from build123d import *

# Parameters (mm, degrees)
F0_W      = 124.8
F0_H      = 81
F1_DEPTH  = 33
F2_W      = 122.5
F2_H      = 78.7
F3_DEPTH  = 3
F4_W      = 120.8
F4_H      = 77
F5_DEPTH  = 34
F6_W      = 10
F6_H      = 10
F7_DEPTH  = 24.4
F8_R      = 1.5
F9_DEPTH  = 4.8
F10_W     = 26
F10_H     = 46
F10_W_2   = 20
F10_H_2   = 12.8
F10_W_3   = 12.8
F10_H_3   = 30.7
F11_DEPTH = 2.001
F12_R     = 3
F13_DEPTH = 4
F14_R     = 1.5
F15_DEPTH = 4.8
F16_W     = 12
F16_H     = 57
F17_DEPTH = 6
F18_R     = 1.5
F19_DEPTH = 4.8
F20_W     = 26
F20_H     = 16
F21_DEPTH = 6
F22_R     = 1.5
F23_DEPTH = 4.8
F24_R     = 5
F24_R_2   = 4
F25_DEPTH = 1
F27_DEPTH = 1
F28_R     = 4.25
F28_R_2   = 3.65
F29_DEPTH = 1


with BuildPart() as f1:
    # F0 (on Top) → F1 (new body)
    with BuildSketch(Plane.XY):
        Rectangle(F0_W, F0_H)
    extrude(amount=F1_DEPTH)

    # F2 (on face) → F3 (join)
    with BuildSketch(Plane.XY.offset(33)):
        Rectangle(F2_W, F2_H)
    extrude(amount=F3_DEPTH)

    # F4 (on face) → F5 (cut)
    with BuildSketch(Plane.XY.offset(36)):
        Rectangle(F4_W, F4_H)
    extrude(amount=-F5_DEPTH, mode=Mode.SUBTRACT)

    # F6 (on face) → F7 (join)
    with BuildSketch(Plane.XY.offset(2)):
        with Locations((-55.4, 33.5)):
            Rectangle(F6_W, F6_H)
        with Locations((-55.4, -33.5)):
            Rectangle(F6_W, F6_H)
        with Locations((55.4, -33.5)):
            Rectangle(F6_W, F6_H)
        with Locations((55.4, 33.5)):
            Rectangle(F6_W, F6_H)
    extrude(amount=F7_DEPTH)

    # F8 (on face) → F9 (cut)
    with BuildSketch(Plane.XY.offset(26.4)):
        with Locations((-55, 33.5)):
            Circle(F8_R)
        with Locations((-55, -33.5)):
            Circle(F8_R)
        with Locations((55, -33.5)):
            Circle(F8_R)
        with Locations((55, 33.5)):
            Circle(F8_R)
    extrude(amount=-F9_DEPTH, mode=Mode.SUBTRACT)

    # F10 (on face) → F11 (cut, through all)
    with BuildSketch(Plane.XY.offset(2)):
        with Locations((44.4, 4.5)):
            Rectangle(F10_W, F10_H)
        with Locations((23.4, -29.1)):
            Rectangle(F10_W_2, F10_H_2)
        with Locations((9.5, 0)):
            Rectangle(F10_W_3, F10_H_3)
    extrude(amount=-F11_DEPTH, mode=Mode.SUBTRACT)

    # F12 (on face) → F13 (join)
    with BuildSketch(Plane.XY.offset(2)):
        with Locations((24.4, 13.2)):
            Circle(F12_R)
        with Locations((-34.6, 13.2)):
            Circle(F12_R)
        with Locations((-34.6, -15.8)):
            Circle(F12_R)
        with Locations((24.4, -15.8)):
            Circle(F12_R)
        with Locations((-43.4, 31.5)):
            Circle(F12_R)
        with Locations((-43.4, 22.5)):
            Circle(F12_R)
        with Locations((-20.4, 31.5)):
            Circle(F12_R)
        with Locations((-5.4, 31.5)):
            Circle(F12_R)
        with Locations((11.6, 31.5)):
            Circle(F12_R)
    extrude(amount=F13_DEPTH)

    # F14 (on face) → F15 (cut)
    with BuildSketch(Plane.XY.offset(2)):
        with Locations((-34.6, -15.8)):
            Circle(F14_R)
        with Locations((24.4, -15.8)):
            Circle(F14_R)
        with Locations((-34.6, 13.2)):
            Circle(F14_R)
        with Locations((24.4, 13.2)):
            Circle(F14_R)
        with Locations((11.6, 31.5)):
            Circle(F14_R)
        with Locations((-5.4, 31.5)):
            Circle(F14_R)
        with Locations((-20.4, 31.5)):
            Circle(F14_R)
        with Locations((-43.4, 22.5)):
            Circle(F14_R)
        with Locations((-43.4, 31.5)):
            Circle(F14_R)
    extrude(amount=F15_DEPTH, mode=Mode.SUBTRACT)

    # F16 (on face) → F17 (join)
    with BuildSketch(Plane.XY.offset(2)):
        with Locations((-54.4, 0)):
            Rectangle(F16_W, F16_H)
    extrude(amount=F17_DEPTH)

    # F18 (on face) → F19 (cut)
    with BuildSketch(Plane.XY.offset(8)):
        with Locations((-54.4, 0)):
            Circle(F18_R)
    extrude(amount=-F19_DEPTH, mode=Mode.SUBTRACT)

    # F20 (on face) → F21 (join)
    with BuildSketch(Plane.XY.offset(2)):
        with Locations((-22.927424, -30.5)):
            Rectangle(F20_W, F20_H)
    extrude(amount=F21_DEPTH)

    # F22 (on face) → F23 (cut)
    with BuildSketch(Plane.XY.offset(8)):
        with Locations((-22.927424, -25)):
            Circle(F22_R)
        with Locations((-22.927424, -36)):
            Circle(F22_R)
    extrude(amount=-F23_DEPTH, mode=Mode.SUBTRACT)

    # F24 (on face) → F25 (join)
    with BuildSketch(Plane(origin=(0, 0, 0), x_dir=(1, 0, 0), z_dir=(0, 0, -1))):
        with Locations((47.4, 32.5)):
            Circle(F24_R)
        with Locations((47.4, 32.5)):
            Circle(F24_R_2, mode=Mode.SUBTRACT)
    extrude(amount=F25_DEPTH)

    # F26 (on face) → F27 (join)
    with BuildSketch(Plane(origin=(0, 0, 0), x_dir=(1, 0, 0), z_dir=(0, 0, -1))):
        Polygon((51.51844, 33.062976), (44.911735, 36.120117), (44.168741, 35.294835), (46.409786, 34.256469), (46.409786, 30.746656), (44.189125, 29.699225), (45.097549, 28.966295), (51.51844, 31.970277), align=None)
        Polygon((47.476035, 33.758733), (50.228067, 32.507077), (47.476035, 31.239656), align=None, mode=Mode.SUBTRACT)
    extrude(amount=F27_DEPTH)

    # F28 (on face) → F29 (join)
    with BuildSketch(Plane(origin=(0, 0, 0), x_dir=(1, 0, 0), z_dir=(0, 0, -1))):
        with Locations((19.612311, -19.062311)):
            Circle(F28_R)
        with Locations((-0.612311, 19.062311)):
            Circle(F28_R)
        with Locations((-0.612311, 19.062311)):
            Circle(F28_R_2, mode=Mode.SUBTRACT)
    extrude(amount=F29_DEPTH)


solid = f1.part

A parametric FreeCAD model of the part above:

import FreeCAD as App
import Part
import Sketcher


def add_polygon(sketch, points):
    """Adds a closed chain of lines whose ends are joined by coincident constraints."""
    first, n = sketch.GeometryCount, len(points)
    for a, b in zip(points, points[1:] + points[:1]):
        sketch.addGeometry(Part.LineSegment(App.Vector(*a, 0), App.Vector(*b, 0)), False)
    for i in range(n):
        sketch.addConstraint(Sketcher.Constraint("Coincident", first + i, 2, first + (i + 1) % n, 1))

doc = App.newDocument("Part")
body = doc.addObject("PartDesign::Body", "Body")

sketch1 = body.newObject("Sketcher::SketchObject", "Sketch")
sketch1.AttachmentSupport = (doc.getObject("XY_Plane"), [""])
sketch1.MapMode = "FlatFace"
add_polygon(sketch1, [(-62, 40), (-62, -40), (62, -40), (62, 40)])
sketch1.addConstraint(Sketcher.Constraint("Vertical", 0))
sketch1.addConstraint(Sketcher.Constraint("Horizontal", 1))
sketch1.addConstraint(Sketcher.Constraint("Vertical", 2))
sketch1.addConstraint(Sketcher.Constraint("Horizontal", 3))
sketch1.addConstraint(Sketcher.Constraint("Symmetric", 0, 2, 2, 2, -1, 1))
sketch1.addConstraint(Sketcher.Constraint("DistanceY", 0, 2, 0, 1, 81.0))
sketch1.addConstraint(Sketcher.Constraint("DistanceX", 1, 1, 1, 2, 124.8))
pad1 = body.newObject("PartDesign::Pad", "Pad")
pad1.Profile = sketch1
pad1.Length = 33

sketch2 = body.newObject("Sketcher::SketchObject", "Sketch001")
sketch2.AttachmentSupport = (doc.getObject("XY_Plane"), [""])
sketch2.MapMode = "FlatFace"
sketch2.AttachmentOffset = App.Placement(App.Vector(0, 0, 33), App.Rotation())
add_polygon(sketch2, [(-61, 39), (-61, -39), (61, -39), (61, 39)])
sketch2.addConstraint(Sketcher.Constraint("Vertical", 0))
sketch2.addConstraint(Sketcher.Constraint("Horizontal", 1))
sketch2.addConstraint(Sketcher.Constraint("Vertical", 2))
sketch2.addConstraint(Sketcher.Constraint("Horizontal", 3))
sketch2.addConstraint(Sketcher.Constraint("Symmetric", 0, 2, 2, 2, -1, 1))
sketch2.addConstraint(Sketcher.Constraint("DistanceX", 1, 1, 1, 2, 122.5))
sketch2.addConstraint(Sketcher.Constraint("DistanceY", 0, 2, 0, 1, 78.7))
pad2 = body.newObject("PartDesign::Pad", "Pad001")
pad2.Profile = sketch2
pad2.Length = 3

sketch3 = body.newObject("Sketcher::SketchObject", "Sketch002")
sketch3.AttachmentSupport = (doc.getObject("XY_Plane"), [""])
sketch3.MapMode = "FlatFace"
sketch3.AttachmentOffset = App.Placement(App.Vector(0, 0, 36), App.Rotation())
add_polygon(sketch3, [(-60, 38), (-60, -38), (60, -38), (60, 38)])
sketch3.addConstraint(Sketcher.Constraint("Vertical", 0))
sketch3.addConstraint(Sketcher.Constraint("Horizontal", 1))
sketch3.addConstraint(Sketcher.Constraint("Vertical", 2))
sketch3.addConstraint(Sketcher.Constraint("Horizontal", 3))
sketch3.addConstraint(Sketcher.Constraint("Symmetric", 0, 2, 2, 2, -1, 1))
sketch3.addConstraint(Sketcher.Constraint("DistanceY", 0, 2, 0, 1, 77.0))
sketch3.addConstraint(Sketcher.Constraint("DistanceX", 1, 1, 1, 2, 120.8))
pocket1 = body.newObject("PartDesign::Pocket", "Pocket")
pocket1.Profile = sketch3
pocket1.Length = 34

sketch4 = body.newObject("Sketcher::SketchObject", "Sketch003")
sketch4.AttachmentSupport = (doc.getObject("XY_Plane"), [""])
sketch4.MapMode = "FlatFace"
sketch4.AttachmentOffset = App.Placement(App.Vector(0, 0, 2), App.Rotation())
add_polygon(sketch4, [(-60, 38), (-60, 28), (-50, 28), (-50, 38)])
add_polygon(sketch4, [(-60, -28), (-60, -38), (-50, -38), (-50, -28)])
add_polygon(sketch4, [(50, -28), (50, -38), (60, -38), (60, -28)])
add_polygon(sketch4, [(50, 38), (50, 28), (60, 28), (60, 38)])
sketch4.addConstraint(Sketcher.Constraint("Vertical", 0))
sketch4.addConstraint(Sketcher.Constraint("Horizontal", 1))
sketch4.addConstraint(Sketcher.Constraint("Vertical", 2))
sketch4.addConstraint(Sketcher.Constraint("Horizontal", 3))
sketch4.addConstraint(Sketcher.Constraint("Vertical", 4))
sketch4.addConstraint(Sketcher.Constraint("Horizontal", 5))
sketch4.addConstraint(Sketcher.Constraint("Vertical", 6))
sketch4.addConstraint(Sketcher.Constraint("Horizontal", 7))
sketch4.addConstraint(Sketcher.Constraint("Vertical", 8))
sketch4.addConstraint(Sketcher.Constraint("Horizontal", 9))
sketch4.addConstraint(Sketcher.Constraint("Vertical", 10))
sketch4.addConstraint(Sketcher.Constraint("Horizontal", 11))
sketch4.addConstraint(Sketcher.Constraint("Vertical", 12))
sketch4.addConstraint(Sketcher.Constraint("Horizontal", 13))
sketch4.addConstraint(Sketcher.Constraint("Vertical", 14))
sketch4.addConstraint(Sketcher.Constraint("Horizontal", 15))
sketch4.addConstraint(Sketcher.Constraint("Symmetric", 2, 2, 8, 2, -1, 1))
sketch4.addConstraint(Sketcher.Constraint("Symmetric", 0, 2, 10, 2, -1, 1))
sketch4.addConstraint(Sketcher.Constraint("Symmetric", 6, 2, 12, 2, -1, 1))
sketch4.addConstraint(Sketcher.Constraint("Symmetric", 4, 2, 14, 2, -1, 1))
sketch4.addConstraint(Sketcher.Constraint("Symmetric", 5, 2, 8, 2, -2))
sketch4.addConstraint(Sketcher.Constraint("Symmetric", 7, 2, 10, 2, -2))
sketch4.addConstraint(Sketcher.Constraint("Equal", 15, 0))
sketch4.addConstraint(Sketcher.Constraint("DistanceX", 1, 1, 1, 2, 10.0))
sketch4.addConstraint(Sketcher.Constraint("DistanceY", 4, 2, 0, 2, 67.0))
sketch4.addConstraint(Sketcher.Constraint("DistanceX", 0, 2, -1, 1, 60.4))
pad3 = body.newObject("PartDesign::Pad", "Pad002")
pad3.Profile = sketch4
pad3.Length = 24.4

sketch5 = body.newObject("Sketcher::SketchObject", "Sketch004")
sketch5.AttachmentSupport = (doc.getObject("XY_Plane"), [""])
sketch5.MapMode = "FlatFace"
sketch5.AttachmentOffset = App.Placement(App.Vector(0, 0, 26.4), App.Rotation())
sketch5.addGeometry(Part.Circle(App.Vector(-55, 33.5, 0), App.Vector(0, 0, 1), 1.5), False)
sketch5.addGeometry(Part.Circle(App.Vector(-55, -33.5, 0), App.Vector(0, 0, 1), 1.5), False)
sketch5.addGeometry(Part.Circle(App.Vector(55, -33.5, 0), App.Vector(0, 0, 1), 1.5), False)
sketch5.addGeometry(Part.Circle(App.Vector(55, 33.5, 0), App.Vector(0, 0, 1), 1.5), False)
sketch5.addConstraint(Sketcher.Constraint("Equal", 0, 1))
sketch5.addConstraint(Sketcher.Constraint("Equal", 1, 2))
sketch5.addConstraint(Sketcher.Constraint("Equal", 2, 3))
sketch5.addConstraint(Sketcher.Constraint("Symmetric", 0, 3, 2, 3, -1, 1))
sketch5.addConstraint(Sketcher.Constraint("Symmetric", 1, 3, 3, 3, -1, 1))
sketch5.addConstraint(Sketcher.Constraint("Symmetric", 1, 3, 2, 3, -2))
sketch5.addConstraint(Sketcher.Constraint("Diameter", 0, 3.0))
sketch5.addConstraint(Sketcher.Constraint("DistanceX", 0, 3, -1, 1, 55.0))
sketch5.addConstraint(Sketcher.Constraint("DistanceY", 1, 3, 0, 3, 67.0))
pocket2 = body.newObject("PartDesign::Pocket", "Pocket001")
pocket2.Profile = sketch5
pocket2.Length = 4.8

sketch6 = body.newObject("Sketcher::SketchObject", "Sketch005")
sketch6.AttachmentSupport = (doc.getObject("XY_Plane"), [""])
sketch6.MapMode = "FlatFace"
sketch6.AttachmentOffset = App.Placement(App.Vector(0, 0, 2), App.Rotation())
add_polygon(sketch6, [(31, 28), (31, -18), (57, -18), (57, 28)])
add_polygon(sketch6, [(13, -23), (13, -36), (33, -36), (33, -23)])
add_polygon(sketch6, [(3, 15), (3, -15), (16, -15), (16, 15)])
sketch6.addConstraint(Sketcher.Constraint("Vertical", 0))
sketch6.addConstraint(Sketcher.Constraint("Horizontal", 1))
sketch6.addConstraint(Sketcher.Constraint("Vertical", 2))
sketch6.addConstraint(Sketcher.Constraint("Horizontal", 3))
sketch6.addConstraint(Sketcher.Constraint("Vertical", 4))
sketch6.addConstraint(Sketcher.Constraint("Horizontal", 5))
sketch6.addConstraint(Sketcher.Constraint("Vertical", 6))
sketch6.addConstraint(Sketcher.Constraint("Horizontal", 7))
sketch6.addConstraint(Sketcher.Constraint("Vertical", 8))
sketch6.addConstraint(Sketcher.Constraint("Horizontal", 9))
sketch6.addConstraint(Sketcher.Constraint("Vertical", 10))
sketch6.addConstraint(Sketcher.Constraint("Horizontal", 11))
sketch6.addConstraint(Sketcher.Constraint("Equal", 11, 4))
sketch6.addConstraint(Sketcher.Constraint("DistanceX", 1, 1, 1, 2, 26.0))
sketch6.addConstraint(Sketcher.Constraint("DistanceX", 5, 1, 5, 2, 20.0))
sketch6.addConstraint(Sketcher.Constraint("DistanceY", 0, 2, 0, 1, 46.0))
sketch6.addConstraint(Sketcher.Constraint("DistanceX", 9, 1, 9, 2, 12.8))
sketch6.addConstraint(Sketcher.Constraint("DistanceY", 8, 2, 8, 1, 30.7))
sketch6.addConstraint(Sketcher.Constraint("DistanceX", 4, 2, 0, 2, 18.0))
sketch6.addConstraint(Sketcher.Constraint("DistanceY", 4, 2, 0, 2, 17.0))
sketch6.addConstraint(Sketcher.Constraint("DistanceX", -1, 1, 0, 2, 31.4))
sketch6.addConstraint(Sketcher.Constraint("DistanceY", 0, 2, -1, 1, 18.5))
sketch6.addConstraint(Sketcher.Constraint("DistanceX", -1, 1, 8, 2, 3.1))
sketch6.addConstraint(Sketcher.Constraint("DistanceY", 8, 2, -1, 1, 15.35))
pocket3 = body.newObject("PartDesign::Pocket", "Pocket002")
pocket3.Profile = sketch6
pocket3.Type = "ThroughAll"

sketch7 = body.newObject("Sketcher::SketchObject", "Sketch006")
sketch7.AttachmentSupport = (doc.getObject("XY_Plane"), [""])
sketch7.MapMode = "FlatFace"
sketch7.AttachmentOffset = App.Placement(App.Vector(0, 0, 2), App.Rotation())
sketch7.addGeometry(Part.Circle(App.Vector(24.4, 13.2, 0), App.Vector(0, 0, 1), 3), False)
sketch7.addGeometry(Part.Circle(App.Vector(-34.6, 13.2, 0), App.Vector(0, 0, 1), 3), False)
sketch7.addGeometry(Part.Circle(App.Vector(-34.6, -15.8, 0), App.Vector(0, 0, 1), 3), False)
sketch7.addGeometry(Part.Circle(App.Vector(24.4, -15.8, 0), App.Vector(0, 0, 1), 3), False)
sketch7.addGeometry(Part.Circle(App.Vector(-43.4, 31.5, 0), App.Vector(0, 0, 1), 3), False)
sketch7.addGeometry(Part.Circle(App.Vector(-43.4, 22.5, 0), App.Vector(0, 0, 1), 3), False)
sketch7.addGeometry(Part.Circle(App.Vector(-20.4, 31.5, 0), App.Vector(0, 0, 1), 3), False)
sketch7.addGeometry(Part.Circle(App.Vector(-5.4, 31.5, 0), App.Vector(0, 0, 1), 3), False)
sketch7.addGeometry(Part.Circle(App.Vector(11.6, 31.5, 0), App.Vector(0, 0, 1), 3), False)
sketch7.addConstraint(Sketcher.Constraint("Equal", 0, 1))
sketch7.addConstraint(Sketcher.Constraint("Equal", 1, 2))
sketch7.addConstraint(Sketcher.Constraint("Equal", 2, 3))
sketch7.addConstraint(Sketcher.Constraint("Equal", 3, 4))
sketch7.addConstraint(Sketcher.Constraint("Equal", 4, 5))
sketch7.addConstraint(Sketcher.Constraint("Equal", 5, 6))
sketch7.addConstraint(Sketcher.Constraint("Equal", 6, 7))
sketch7.addConstraint(Sketcher.Constraint("Equal", 7, 8))
sketch7.addConstraint(Sketcher.Constraint("Horizontal", 0, 3, 1, 3))
sketch7.addConstraint(Sketcher.Constraint("Horizontal", 2, 3, 3, 3))
sketch7.addConstraint(Sketcher.Constraint("Horizontal", 4, 3, 6, 3))
sketch7.addConstraint(Sketcher.Constraint("Horizontal", 6, 3, 7, 3))
sketch7.addConstraint(Sketcher.Constraint("Horizontal", 7, 3, 8, 3))
sketch7.addConstraint(Sketcher.Constraint("Vertical", 1, 3, 2, 3))
sketch7.addConstraint(Sketcher.Constraint("Vertical", 0, 3, 3, 3))
sketch7.addConstraint(Sketcher.Constraint("Vertical", 4, 3, 5, 3))
sketch7.addConstraint(Sketcher.Constraint("Diameter", 0, 6.0))
sketch7.addConstraint(Sketcher.Constraint("DistanceX", 1, 3, 0, 3, 59.0))
sketch7.addConstraint(Sketcher.Constraint("DistanceY", 2, 3, 1, 3, 29.0))
sketch7.addConstraint(Sketcher.Constraint("DistanceY", 5, 3, 4, 3, 9.0))
sketch7.addConstraint(Sketcher.Constraint("DistanceX", 4, 3, 6, 3, 23.0))
sketch7.addConstraint(Sketcher.Constraint("DistanceX", 6, 3, 7, 3, 15.0))
sketch7.addConstraint(Sketcher.Constraint("DistanceX", 7, 3, 8, 3, 17.0))
sketch7.addConstraint(Sketcher.Constraint("DistanceX", -1, 1, 0, 3, 24.4))
sketch7.addConstraint(Sketcher.Constraint("DistanceY", -1, 1, 0, 3, 13.2))
sketch7.addConstraint(Sketcher.Constraint("DistanceX", 4, 3, -1, 1, 43.4))
sketch7.addConstraint(Sketcher.Constraint("DistanceY", -1, 1, 4, 3, 31.5))
pad4 = body.newObject("PartDesign::Pad", "Pad003")
pad4.Profile = sketch7
pad4.Length = 4

sketch8 = body.newObject("Sketcher::SketchObject", "Sketch007")
sketch8.AttachmentSupport = (doc.getObject("XY_Plane"), [""])
sketch8.MapMode = "FlatFace"
sketch8.AttachmentOffset = App.Placement(App.Vector(0, 0, 2), App.Rotation())
sketch8.addGeometry(Part.Circle(App.Vector(-34.6, -15.8, 0), App.Vector(0, 0, 1), 1.5), False)
sketch8.addGeometry(Part.Circle(App.Vector(24.4, -15.8, 0), App.Vector(0, 0, 1), 1.5), False)
sketch8.addGeometry(Part.Circle(App.Vector(-34.6, 13.2, 0), App.Vector(0, 0, 1), 1.5), False)
sketch8.addGeometry(Part.Circle(App.Vector(24.4, 13.2, 0), App.Vector(0, 0, 1), 1.5), False)
sketch8.addGeometry(Part.Circle(App.Vector(11.6, 31.5, 0), App.Vector(0, 0, 1), 1.5), False)
sketch8.addGeometry(Part.Circle(App.Vector(-5.4, 31.5, 0), App.Vector(0, 0, 1), 1.5), False)
sketch8.addGeometry(Part.Circle(App.Vector(-20.4, 31.5, 0), App.Vector(0, 0, 1), 1.5), False)
sketch8.addGeometry(Part.Circle(App.Vector(-43.4, 22.5, 0), App.Vector(0, 0, 1), 1.5), False)
sketch8.addGeometry(Part.Circle(App.Vector(-43.4, 31.5, 0), App.Vector(0, 0, 1), 1.5), False)
sketch8.addConstraint(Sketcher.Constraint("Equal", 0, 1))
sketch8.addConstraint(Sketcher.Constraint("Equal", 1, 2))
sketch8.addConstraint(Sketcher.Constraint("Equal", 2, 3))
sketch8.addConstraint(Sketcher.Constraint("Equal", 3, 4))
sketch8.addConstraint(Sketcher.Constraint("Equal", 4, 5))
sketch8.addConstraint(Sketcher.Constraint("Equal", 5, 6))
sketch8.addConstraint(Sketcher.Constraint("Equal", 6, 7))
sketch8.addConstraint(Sketcher.Constraint("Equal", 7, 8))
sketch8.addConstraint(Sketcher.Constraint("Horizontal", 0, 3, 1, 3))
sketch8.addConstraint(Sketcher.Constraint("Horizontal", 2, 3, 3, 3))
sketch8.addConstraint(Sketcher.Constraint("Horizontal", 4, 3, 5, 3))
sketch8.addConstraint(Sketcher.Constraint("Horizontal", 5, 3, 6, 3))
sketch8.addConstraint(Sketcher.Constraint("Horizontal", 6, 3, 8, 3))
sketch8.addConstraint(Sketcher.Constraint("Vertical", 0, 3, 2, 3))
sketch8.addConstraint(Sketcher.Constraint("Vertical", 1, 3, 3, 3))
sketch8.addConstraint(Sketcher.Constraint("Vertical", 7, 3, 8, 3))
sketch8.addConstraint(Sketcher.Constraint("Diameter", 0, 3.0))
sketch8.addConstraint(Sketcher.Constraint("DistanceX", 0, 3, 1, 3, 59.0))
sketch8.addConstraint(Sketcher.Constraint("DistanceY", 0, 3, 2, 3, 29.0))
sketch8.addConstraint(Sketcher.Constraint("DistanceX", 5, 3, 4, 3, 17.0))
sketch8.addConstraint(Sketcher.Constraint("DistanceX", 6, 3, 5, 3, 15.0))
sketch8.addConstraint(Sketcher.Constraint("DistanceX", 7, 3, 6, 3, 23.0))
sketch8.addConstraint(Sketcher.Constraint("DistanceY", 7, 3, 6, 3, 9.0))
sketch8.addConstraint(Sketcher.Constraint("DistanceX", 0, 3, -1, 1, 34.6))
sketch8.addConstraint(Sketcher.Constraint("DistanceY", 0, 3, -1, 1, 15.8))
sketch8.addConstraint(Sketcher.Constraint("DistanceX", -1, 1, 4, 3, 11.6))
sketch8.addConstraint(Sketcher.Constraint("DistanceY", -1, 1, 4, 3, 31.5))
pocket4 = body.newObject("PartDesign::Pocket", "Pocket003")
pocket4.Profile = sketch8
pocket4.Length = 4.8
pocket4.Reversed = True

sketch9 = body.newObject("Sketcher::SketchObject", "Sketch008")
sketch9.AttachmentSupport = (doc.getObject("XY_Plane"), [""])
sketch9.MapMode = "FlatFace"
sketch9.AttachmentOffset = App.Placement(App.Vector(0, 0, 2), App.Rotation())
add_polygon(sketch9, [(-60, 28), (-60, -28), (-48, -28), (-48, 28)])
sketch9.addConstraint(Sketcher.Constraint("Vertical", 0))
sketch9.addConstraint(Sketcher.Constraint("Horizontal", 1))
sketch9.addConstraint(Sketcher.Constraint("Vertical", 2))
sketch9.addConstraint(Sketcher.Constraint("Horizontal", 3))
sketch9.addConstraint(Sketcher.Constraint("DistanceX", 1, 1, 1, 2, 12.0))
sketch9.addConstraint(Sketcher.Constraint("DistanceY", 0, 2, 0, 1, 57.0))
sketch9.addConstraint(Sketcher.Constraint("DistanceX", 0, 2, -1, 1, 60.4))
sketch9.addConstraint(Sketcher.Constraint("DistanceY", 0, 2, -1, 1, 28.5))
pad5 = body.newObject("PartDesign::Pad", "Pad004")
pad5.Profile = sketch9
pad5.Length = 6

sketch10 = body.newObject("Sketcher::SketchObject", "Sketch009")
sketch10.AttachmentSupport = (doc.getObject("XY_Plane"), [""])
sketch10.MapMode = "FlatFace"
sketch10.AttachmentOffset = App.Placement(App.Vector(0, 0, 8), App.Rotation())
sketch10.addGeometry(Part.Circle(App.Vector(-54.4, 0, 0), App.Vector(0, 0, 1), 1.5), False)
sketch10.addConstraint(Sketcher.Constraint("PointOnObject", 0, 3, -1))
sketch10.addConstraint(Sketcher.Constraint("Diameter", 0, 3.0))
sketch10.addConstraint(Sketcher.Constraint("DistanceX", 0, 3, -1, 1, 54.4))
pocket5 = body.newObject("PartDesign::Pocket", "Pocket004")
pocket5.Profile = sketch10
pocket5.Length = 4.8

sketch11 = body.newObject("Sketcher::SketchObject", "Sketch010")
sketch11.AttachmentSupport = (doc.getObject("XY_Plane"), [""])
sketch11.MapMode = "FlatFace"
sketch11.AttachmentOffset = App.Placement(App.Vector(0, 0, 2), App.Rotation())
add_polygon(sketch11, [(-36, -22), (-36, -38), (-10, -38), (-10, -22)])
sketch11.addConstraint(Sketcher.Constraint("Vertical", 0))
sketch11.addConstraint(Sketcher.Constraint("Horizontal", 1))
sketch11.addConstraint(Sketcher.Constraint("Vertical", 2))
sketch11.addConstraint(Sketcher.Constraint("Horizontal", 3))
sketch11.addConstraint(Sketcher.Constraint("DistanceX", 1, 1, 1, 2, 26.0))
sketch11.addConstraint(Sketcher.Constraint("DistanceY", 0, 2, 0, 1, 16.0))
sketch11.addConstraint(Sketcher.Constraint("DistanceY", 0, 2, -1, 1, 38.5))
sketch11.addConstraint(Sketcher.Constraint("DistanceX", 0, 2, -1, 1, 35.927424))
pad6 = body.newObject("PartDesign::Pad", "Pad005")
pad6.Profile = sketch11
pad6.Length = 6

sketch12 = body.newObject("Sketcher::SketchObject", "Sketch011")
sketch12.AttachmentSupport = (doc.getObject("XY_Plane"), [""])
sketch12.MapMode = "FlatFace"
sketch12.AttachmentOffset = App.Placement(App.Vector(0, 0, 8), App.Rotation())
sketch12.addGeometry(Part.Circle(App.Vector(-22.9, -25, 0), App.Vector(0, 0, 1), 1.5), False)
sketch12.addGeometry(Part.Circle(App.Vector(-22.9, -36, 0), App.Vector(0, 0, 1), 1.5), False)
sketch12.addConstraint(Sketcher.Constraint("Equal", 0, 1))
sketch12.addConstraint(Sketcher.Constraint("Vertical", 0, 3, 1, 3))
sketch12.addConstraint(Sketcher.Constraint("Diameter", 0, 3.0))
sketch12.addConstraint(Sketcher.Constraint("DistanceY", 0, 3, -1, 1, 25.0))
sketch12.addConstraint(Sketcher.Constraint("DistanceY", 1, 3, -1, 1, 36.0))
sketch12.addConstraint(Sketcher.Constraint("DistanceX", 0, 3, -1, 1, 22.927424))
pocket6 = body.newObject("PartDesign::Pocket", "Pocket005")
pocket6.Profile = sketch12
pocket6.Length = 4.8

sketch13 = body.newObject("Sketcher::SketchObject", "Sketch012")
sketch13.AttachmentSupport = (doc.getObject("XY_Plane"), [""])
sketch13.MapMode = "FlatFace"
sketch13.addGeometry(Part.Circle(App.Vector(47.4, -32.5, 0), App.Vector(0, 0, 1), 5), False)
sketch13.addGeometry(Part.Circle(App.Vector(47.4, -32.5, 0), App.Vector(0, 0, 1), 4), False)
sketch13.addConstraint(Sketcher.Constraint("Coincident", 1, 3, 0, 3))
sketch13.addConstraint(Sketcher.Constraint("Diameter", 0, 10.0))
sketch13.addConstraint(Sketcher.Constraint("Diameter", 1, 8.0))
sketch13.addConstraint(Sketcher.Constraint("DistanceX", -1, 1, 0, 3, 47.4))
sketch13.addConstraint(Sketcher.Constraint("DistanceY", 0, 3, -1, 1, 32.5))
pad7 = body.newObject("PartDesign::Pad", "Pad006")
pad7.Profile = sketch13
pad7.Length = 1
pad7.Reversed = True

sketch14 = body.newObject("Sketcher::SketchObject", "Sketch013")
sketch14.AttachmentSupport = (doc.getObject("XY_Plane"), [""])
sketch14.MapMode = "FlatFace"
add_polygon(sketch14, [(51.5, -33.1), (44.9, -36.1), (44.2, -35.3), (46.4, -34.3), (46.4, -30.7), (44.2, -29.7), (45.1, -29), (51.5, -32)])
add_polygon(sketch14, [(47.5, -31.2), (47.5, -33.8), (50.2, -32.5)])
sketch14.addConstraint(Sketcher.Constraint("Vertical", 3))
sketch14.addConstraint(Sketcher.Constraint("Vertical", 7))
sketch14.addConstraint(Sketcher.Constraint("Vertical", 8))
sketch14.addConstraint(Sketcher.Constraint("DistanceY", 7, 2, 7, 1, 1.092699))
sketch14.addConstraint(Sketcher.Constraint("DistanceY", 10, 2, 3, 2, 0.493))
sketch14.addConstraint(Sketcher.Constraint("DistanceX", 0, 2, 8, 2, 2.5643))
sketch14.addConstraint(Sketcher.Constraint("DistanceY", 1, 2, 8, 2, 1.536102))
sketch14.addConstraint(Sketcher.Constraint("DistanceY", 9, 2, 6, 2, 0.5368))
sketch14.addConstraint(Sketcher.Constraint("Distance", 4, 2.45529))
sketch14.addConstraint(Sketcher.Constraint("DistanceY", 3, 1, 3, 2, 3.509813))
sketch14.addConstraint(Sketcher.Constraint("DistanceY", 8, 2, 8, 1, 2.519077))
sketch14.addConstraint(Sketcher.Constraint("DistanceX", -1, 1, 1, 2, 44.168741))
sketch14.addConstraint(Sketcher.Constraint("DistanceY", 2, 2, -1, 1, 34.256469))
sketch14.addConstraint(Sketcher.Constraint("DistanceX", -1, 1, 5, 2, 45.097549))
sketch14.addConstraint(Sketcher.Constraint("DistanceX", -1, 1, 6, 2, 51.51844))
sketch14.addConstraint(Sketcher.Constraint("DistanceX", 0, 2, 2, 2, 1.498051))
sketch14.addConstraint(Sketcher.Constraint("DistanceY", 0, 2, 3, 2, 5.373461))
sketch14.addConstraint(Sketcher.Constraint("DistanceX", 4, 2, 3, 2, 2.220661))
sketch14.addConstraint(Sketcher.Constraint("DistanceY", 4, 2, 5, 2, 0.73293))
sketch14.addConstraint(Sketcher.Constraint("DistanceY", 6, 2, 3, 2, 1.223621))
sketch14.addConstraint(Sketcher.Constraint("DistanceX", 8, 2, 9, 2, 2.752032))
sketch14.addConstraint(Sketcher.Constraint("Distance", 0, 7.279743))
pad8 = body.newObject("PartDesign::Pad", "Pad007")
pad8.Profile = sketch14
pad8.Length = 1
pad8.Reversed = True

sketch15 = body.newObject("Sketcher::SketchObject", "Sketch014")
sketch15.AttachmentSupport = (doc.getObject("XY_Plane"), [""])
sketch15.MapMode = "FlatFace"
sketch15.addGeometry(Part.Circle(App.Vector(19.6, 19.1, 0), App.Vector(0, 0, 1), 4.2), False)
sketch15.addGeometry(Part.Circle(App.Vector(-0.6, -19.1, 0), App.Vector(0, 0, 1), 4.2), False)
sketch15.addGeometry(Part.Circle(App.Vector(-0.6, -19.1, 0), App.Vector(0, 0, 1), 3.6), False)
sketch15.addConstraint(Sketcher.Constraint("Coincident", 2, 3, 1, 3))
sketch15.addConstraint(Sketcher.Constraint("Equal", 0, 1))
sketch15.addConstraint(Sketcher.Constraint("Diameter", 0, 8.5))
sketch15.addConstraint(Sketcher.Constraint("Diameter", 2, 7.3))
sketch15.addConstraint(Sketcher.Constraint("DistanceX", -1, 1, 0, 3, 19.612311))
sketch15.addConstraint(Sketcher.Constraint("DistanceY", -1, 1, 0, 3, 19.062311))
sketch15.addConstraint(Sketcher.Constraint("DistanceX", 1, 3, -1, 1, 0.612311))
sketch15.addConstraint(Sketcher.Constraint("DistanceY", 1, 3, -1, 1, 19.062311))
pad9 = body.newObject("PartDesign::Pad", "Pad008")
pad9.Profile = sketch15
pad9.Length = 1
pad9.Reversed = True

doc.recompute()
